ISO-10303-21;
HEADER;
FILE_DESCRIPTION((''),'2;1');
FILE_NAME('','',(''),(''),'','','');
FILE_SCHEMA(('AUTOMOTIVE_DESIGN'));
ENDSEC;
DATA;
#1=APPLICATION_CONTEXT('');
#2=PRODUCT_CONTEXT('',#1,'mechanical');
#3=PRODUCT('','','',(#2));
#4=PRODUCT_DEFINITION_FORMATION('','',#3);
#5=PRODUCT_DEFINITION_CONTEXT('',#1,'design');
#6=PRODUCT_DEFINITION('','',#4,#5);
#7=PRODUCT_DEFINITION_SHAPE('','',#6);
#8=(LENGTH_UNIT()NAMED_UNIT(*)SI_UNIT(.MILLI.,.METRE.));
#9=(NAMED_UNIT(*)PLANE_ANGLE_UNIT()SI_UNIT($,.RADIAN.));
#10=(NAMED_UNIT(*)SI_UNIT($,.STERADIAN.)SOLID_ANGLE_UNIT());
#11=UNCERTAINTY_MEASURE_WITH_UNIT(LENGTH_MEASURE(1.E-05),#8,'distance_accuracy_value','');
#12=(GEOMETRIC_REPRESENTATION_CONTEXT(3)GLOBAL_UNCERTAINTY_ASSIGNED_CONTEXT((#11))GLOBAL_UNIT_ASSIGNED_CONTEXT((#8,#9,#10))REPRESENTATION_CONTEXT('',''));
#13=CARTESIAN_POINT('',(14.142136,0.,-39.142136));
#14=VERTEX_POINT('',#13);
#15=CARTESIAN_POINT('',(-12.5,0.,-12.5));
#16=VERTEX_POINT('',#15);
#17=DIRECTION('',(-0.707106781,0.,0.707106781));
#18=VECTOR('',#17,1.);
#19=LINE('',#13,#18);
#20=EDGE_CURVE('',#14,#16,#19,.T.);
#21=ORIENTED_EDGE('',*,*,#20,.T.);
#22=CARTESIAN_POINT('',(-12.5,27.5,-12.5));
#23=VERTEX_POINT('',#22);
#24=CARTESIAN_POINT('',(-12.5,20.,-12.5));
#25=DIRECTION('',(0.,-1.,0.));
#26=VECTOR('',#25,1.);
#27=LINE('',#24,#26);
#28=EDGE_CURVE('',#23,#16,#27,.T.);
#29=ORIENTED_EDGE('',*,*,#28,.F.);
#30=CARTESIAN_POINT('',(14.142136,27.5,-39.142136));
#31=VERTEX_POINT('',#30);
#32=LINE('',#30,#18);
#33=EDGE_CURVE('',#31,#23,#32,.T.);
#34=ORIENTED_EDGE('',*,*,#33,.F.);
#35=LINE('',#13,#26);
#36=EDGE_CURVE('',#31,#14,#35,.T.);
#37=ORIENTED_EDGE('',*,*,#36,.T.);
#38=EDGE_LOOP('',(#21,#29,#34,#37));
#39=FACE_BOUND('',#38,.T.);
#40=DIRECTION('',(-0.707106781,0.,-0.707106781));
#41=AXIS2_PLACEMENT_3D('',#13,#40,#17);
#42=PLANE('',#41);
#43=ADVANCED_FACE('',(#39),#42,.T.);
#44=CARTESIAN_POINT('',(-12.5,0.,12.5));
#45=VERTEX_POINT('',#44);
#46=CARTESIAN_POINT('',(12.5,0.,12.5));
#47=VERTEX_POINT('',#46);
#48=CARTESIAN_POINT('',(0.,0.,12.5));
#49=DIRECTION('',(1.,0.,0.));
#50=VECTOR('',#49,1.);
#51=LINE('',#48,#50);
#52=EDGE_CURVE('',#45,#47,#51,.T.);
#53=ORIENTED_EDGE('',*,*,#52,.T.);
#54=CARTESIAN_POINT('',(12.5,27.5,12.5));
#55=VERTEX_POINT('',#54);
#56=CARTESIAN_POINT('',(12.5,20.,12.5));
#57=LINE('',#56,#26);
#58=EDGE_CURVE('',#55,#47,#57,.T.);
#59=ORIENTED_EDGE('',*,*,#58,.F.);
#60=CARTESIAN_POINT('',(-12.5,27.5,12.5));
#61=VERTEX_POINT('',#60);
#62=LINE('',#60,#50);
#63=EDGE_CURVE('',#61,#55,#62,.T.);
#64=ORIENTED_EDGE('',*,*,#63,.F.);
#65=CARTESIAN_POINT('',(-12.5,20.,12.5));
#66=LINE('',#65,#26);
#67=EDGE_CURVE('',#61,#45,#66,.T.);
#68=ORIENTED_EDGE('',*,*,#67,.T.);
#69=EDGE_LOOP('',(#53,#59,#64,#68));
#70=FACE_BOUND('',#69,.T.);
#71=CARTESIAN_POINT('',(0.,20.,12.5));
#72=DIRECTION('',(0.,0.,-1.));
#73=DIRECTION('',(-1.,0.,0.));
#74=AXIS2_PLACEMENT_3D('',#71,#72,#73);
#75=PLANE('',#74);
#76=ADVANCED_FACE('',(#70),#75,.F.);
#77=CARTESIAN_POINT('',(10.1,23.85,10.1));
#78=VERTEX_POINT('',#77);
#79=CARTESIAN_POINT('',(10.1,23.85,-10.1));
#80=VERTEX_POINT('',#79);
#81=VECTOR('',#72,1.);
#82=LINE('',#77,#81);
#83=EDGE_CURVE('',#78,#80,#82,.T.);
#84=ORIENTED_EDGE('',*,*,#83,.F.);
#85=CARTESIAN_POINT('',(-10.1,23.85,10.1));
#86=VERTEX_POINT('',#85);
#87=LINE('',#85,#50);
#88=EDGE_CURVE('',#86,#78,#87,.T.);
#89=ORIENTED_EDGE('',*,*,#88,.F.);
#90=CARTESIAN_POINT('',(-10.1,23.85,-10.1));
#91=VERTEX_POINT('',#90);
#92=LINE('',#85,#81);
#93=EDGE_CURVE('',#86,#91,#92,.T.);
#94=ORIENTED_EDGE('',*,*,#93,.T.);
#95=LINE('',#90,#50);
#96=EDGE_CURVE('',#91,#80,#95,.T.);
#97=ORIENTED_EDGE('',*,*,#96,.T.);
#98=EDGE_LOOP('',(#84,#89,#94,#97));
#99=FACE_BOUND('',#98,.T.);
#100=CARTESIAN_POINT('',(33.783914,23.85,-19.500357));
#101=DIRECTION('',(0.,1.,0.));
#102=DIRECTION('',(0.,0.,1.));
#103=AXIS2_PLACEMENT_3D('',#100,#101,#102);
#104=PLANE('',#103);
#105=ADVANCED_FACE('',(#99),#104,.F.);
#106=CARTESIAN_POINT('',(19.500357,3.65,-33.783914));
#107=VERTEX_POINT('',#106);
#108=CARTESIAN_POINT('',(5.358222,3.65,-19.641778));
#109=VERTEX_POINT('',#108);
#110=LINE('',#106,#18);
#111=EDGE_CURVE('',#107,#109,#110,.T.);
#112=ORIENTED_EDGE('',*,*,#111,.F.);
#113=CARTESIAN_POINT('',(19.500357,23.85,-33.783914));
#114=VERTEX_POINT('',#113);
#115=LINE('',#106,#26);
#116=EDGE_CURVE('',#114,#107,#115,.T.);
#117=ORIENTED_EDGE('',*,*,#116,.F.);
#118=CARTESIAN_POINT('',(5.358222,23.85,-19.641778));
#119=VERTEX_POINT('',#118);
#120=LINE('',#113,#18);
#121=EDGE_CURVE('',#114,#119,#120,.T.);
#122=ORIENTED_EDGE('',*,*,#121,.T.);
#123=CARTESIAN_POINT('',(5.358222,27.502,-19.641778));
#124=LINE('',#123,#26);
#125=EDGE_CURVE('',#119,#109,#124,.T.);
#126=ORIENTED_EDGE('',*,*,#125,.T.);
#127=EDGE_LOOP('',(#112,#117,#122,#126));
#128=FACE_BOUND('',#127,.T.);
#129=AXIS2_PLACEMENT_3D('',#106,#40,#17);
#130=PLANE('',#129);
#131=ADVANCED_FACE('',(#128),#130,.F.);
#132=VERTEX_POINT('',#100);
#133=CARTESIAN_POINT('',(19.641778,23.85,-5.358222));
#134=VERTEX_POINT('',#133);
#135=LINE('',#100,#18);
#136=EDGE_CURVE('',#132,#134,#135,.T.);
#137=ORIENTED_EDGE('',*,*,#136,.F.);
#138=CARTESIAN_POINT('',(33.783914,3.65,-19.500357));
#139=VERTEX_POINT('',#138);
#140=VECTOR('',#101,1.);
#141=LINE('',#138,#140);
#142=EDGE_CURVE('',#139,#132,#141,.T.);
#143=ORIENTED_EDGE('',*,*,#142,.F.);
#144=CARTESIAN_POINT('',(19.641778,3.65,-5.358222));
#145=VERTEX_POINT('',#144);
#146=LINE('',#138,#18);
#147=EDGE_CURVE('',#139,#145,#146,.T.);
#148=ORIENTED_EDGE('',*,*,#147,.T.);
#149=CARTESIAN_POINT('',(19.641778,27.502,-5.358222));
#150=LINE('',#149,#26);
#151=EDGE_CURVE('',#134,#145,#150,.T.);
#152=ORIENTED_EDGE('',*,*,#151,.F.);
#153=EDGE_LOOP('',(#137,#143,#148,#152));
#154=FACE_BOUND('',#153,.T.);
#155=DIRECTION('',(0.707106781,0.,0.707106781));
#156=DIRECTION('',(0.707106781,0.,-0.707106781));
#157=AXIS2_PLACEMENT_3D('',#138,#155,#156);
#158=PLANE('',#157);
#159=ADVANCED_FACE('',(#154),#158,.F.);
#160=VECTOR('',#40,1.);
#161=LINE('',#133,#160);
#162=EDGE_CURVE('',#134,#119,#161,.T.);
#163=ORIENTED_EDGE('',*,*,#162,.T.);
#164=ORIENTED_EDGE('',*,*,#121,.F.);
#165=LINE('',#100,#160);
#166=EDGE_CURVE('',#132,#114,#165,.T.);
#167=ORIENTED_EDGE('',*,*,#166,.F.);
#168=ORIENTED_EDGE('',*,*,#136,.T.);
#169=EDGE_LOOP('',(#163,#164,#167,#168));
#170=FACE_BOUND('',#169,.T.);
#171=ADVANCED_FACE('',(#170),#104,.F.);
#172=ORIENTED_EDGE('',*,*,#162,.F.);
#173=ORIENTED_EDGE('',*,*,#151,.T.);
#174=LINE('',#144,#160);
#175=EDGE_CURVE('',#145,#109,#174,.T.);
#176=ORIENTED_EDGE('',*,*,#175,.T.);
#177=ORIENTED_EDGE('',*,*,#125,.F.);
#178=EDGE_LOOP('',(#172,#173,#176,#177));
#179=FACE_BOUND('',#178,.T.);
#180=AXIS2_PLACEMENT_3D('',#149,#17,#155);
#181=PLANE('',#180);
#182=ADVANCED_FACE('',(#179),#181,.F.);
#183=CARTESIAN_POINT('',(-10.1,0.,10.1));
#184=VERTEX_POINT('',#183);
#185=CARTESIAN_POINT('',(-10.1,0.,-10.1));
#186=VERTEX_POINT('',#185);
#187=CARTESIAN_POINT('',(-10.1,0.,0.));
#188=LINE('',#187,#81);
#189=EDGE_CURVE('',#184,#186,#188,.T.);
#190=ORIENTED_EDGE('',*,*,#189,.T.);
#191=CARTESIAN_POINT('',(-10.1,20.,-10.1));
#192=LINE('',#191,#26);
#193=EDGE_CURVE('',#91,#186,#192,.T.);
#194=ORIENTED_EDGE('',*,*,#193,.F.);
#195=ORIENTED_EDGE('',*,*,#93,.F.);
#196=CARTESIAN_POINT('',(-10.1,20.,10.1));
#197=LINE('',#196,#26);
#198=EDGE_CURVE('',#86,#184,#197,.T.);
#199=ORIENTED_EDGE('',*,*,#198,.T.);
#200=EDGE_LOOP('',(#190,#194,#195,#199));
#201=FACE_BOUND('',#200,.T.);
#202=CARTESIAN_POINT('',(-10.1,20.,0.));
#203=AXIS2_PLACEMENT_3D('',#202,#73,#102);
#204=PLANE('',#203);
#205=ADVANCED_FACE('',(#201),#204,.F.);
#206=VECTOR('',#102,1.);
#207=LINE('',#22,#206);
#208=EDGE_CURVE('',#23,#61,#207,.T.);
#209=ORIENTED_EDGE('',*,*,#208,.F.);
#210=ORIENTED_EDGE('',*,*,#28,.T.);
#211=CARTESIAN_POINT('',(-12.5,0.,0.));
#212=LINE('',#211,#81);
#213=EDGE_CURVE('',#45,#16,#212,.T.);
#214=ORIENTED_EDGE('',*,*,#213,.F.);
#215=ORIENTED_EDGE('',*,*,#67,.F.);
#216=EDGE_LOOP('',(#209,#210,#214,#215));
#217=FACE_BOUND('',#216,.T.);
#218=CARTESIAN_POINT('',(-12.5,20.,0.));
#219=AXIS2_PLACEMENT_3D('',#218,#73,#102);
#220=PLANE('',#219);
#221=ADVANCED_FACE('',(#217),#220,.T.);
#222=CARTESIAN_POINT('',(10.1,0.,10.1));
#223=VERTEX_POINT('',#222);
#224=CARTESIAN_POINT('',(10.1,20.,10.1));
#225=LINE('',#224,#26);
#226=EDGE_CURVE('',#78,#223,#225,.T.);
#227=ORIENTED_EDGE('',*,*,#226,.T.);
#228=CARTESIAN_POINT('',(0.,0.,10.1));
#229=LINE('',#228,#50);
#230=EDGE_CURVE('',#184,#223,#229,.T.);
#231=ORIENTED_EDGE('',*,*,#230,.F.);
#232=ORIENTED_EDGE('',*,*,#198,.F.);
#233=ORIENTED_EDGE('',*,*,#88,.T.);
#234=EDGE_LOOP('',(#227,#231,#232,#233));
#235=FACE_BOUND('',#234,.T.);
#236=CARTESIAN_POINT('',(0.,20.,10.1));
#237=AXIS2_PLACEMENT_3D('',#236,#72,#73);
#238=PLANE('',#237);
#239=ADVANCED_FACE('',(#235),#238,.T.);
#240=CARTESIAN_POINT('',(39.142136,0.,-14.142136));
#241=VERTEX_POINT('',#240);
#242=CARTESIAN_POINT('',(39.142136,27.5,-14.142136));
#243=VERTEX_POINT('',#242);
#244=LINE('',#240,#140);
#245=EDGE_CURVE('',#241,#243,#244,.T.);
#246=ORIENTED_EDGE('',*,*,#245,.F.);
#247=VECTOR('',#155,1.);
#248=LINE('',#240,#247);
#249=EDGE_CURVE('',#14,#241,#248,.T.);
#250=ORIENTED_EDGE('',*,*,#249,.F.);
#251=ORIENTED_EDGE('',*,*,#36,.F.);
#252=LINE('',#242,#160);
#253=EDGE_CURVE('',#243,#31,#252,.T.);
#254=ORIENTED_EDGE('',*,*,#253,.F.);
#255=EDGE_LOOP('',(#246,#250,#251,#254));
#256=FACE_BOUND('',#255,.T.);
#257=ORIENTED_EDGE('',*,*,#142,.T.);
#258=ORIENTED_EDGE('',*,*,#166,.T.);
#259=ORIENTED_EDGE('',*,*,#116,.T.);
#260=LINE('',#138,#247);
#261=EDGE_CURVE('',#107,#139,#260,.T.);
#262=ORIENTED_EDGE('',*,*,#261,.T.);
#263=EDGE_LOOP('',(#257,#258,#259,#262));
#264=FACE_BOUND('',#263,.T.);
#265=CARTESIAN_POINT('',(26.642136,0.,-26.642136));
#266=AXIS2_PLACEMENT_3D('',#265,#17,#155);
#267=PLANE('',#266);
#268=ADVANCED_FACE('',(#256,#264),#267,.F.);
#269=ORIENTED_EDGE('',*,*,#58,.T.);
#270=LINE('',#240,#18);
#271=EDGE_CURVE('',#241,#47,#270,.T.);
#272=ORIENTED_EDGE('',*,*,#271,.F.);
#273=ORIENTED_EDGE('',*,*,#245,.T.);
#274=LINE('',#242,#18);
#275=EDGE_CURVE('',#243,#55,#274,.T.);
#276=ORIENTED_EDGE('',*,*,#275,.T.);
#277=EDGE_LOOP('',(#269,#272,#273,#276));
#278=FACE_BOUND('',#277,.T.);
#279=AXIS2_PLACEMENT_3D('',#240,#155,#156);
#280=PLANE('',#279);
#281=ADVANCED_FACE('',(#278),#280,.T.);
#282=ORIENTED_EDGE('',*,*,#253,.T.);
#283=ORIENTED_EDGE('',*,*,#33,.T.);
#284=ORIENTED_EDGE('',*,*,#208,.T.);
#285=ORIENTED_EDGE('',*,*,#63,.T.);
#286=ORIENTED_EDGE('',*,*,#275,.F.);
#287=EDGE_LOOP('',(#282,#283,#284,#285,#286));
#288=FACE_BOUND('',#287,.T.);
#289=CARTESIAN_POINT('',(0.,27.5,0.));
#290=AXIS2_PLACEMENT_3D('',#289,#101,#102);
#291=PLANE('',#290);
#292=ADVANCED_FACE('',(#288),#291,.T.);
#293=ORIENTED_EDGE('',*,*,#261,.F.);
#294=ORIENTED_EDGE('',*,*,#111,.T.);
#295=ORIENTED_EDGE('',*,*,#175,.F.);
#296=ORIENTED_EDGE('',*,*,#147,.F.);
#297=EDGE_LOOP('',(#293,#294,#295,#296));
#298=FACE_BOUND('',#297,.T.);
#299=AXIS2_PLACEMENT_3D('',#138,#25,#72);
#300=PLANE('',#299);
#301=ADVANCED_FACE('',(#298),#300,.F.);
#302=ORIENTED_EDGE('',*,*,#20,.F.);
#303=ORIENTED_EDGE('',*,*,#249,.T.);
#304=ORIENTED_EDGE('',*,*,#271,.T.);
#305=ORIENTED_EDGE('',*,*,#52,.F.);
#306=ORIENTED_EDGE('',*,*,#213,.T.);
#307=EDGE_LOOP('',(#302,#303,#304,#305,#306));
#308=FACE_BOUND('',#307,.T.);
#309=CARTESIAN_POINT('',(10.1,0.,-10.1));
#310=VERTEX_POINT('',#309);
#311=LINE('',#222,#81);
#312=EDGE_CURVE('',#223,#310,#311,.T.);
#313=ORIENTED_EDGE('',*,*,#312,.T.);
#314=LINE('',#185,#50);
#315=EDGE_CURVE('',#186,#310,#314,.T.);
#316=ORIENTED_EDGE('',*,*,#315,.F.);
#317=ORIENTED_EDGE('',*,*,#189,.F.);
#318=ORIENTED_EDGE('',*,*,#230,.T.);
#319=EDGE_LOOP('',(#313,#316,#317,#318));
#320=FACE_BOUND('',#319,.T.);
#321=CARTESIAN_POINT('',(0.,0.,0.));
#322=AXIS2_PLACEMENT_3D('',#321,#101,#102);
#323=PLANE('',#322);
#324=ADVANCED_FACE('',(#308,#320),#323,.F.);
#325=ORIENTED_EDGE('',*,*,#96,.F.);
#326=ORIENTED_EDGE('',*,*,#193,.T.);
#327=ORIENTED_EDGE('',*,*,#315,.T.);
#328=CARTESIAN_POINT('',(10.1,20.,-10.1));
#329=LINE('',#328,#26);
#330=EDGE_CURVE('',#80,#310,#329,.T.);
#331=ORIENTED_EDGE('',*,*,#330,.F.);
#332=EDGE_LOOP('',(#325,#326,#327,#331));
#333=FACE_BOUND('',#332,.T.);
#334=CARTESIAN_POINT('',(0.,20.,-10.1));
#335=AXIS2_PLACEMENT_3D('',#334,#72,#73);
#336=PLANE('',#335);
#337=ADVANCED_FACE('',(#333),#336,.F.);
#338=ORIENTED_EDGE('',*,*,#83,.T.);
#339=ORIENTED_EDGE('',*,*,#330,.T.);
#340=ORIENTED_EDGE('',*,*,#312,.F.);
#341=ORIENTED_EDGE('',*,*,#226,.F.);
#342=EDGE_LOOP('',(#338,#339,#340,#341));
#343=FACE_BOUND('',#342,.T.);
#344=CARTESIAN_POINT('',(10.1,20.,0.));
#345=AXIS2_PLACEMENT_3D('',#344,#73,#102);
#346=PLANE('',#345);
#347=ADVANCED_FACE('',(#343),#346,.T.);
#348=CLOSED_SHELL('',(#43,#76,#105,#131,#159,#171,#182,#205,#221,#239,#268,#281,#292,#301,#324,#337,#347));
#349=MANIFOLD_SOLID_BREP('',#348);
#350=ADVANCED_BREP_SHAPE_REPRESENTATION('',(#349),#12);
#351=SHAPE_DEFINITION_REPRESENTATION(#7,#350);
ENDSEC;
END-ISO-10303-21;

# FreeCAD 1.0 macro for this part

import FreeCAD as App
import Part
import Sketcher
Q = App.Units.Quantity


def add_polygon(sketch, points):
    """Adds a closed chain of lines whose ends are joined by coincident constraints."""
    first, n = sketch.GeometryCount, len(points)
    for a, b in zip(points, points[1:] + points[:1]):
        sketch.addGeometry(Part.LineSegment(App.Vector(*a, 0), App.Vector(*b, 0)), False)
    for i in range(n):
        sketch.addConstraint(Sketcher.Constraint("Coincident", first + i, 2, first + (i + 1) % n, 1))

doc = App.newDocument("Part")
body = doc.addObject("PartDesign::Body", "Body")

# Sketch on XZ plane
sketch1 = body.newObject("Sketcher::SketchObject", "Sketch")
sketch1.AttachmentSupport = (doc.getObject("XZ_Plane"), [""])
sketch1.MapMode = "FlatFace"
add_polygon(sketch1, [(-12, -12), (-12, 12), (12, 12), (12, -12)])  # lines 0-3
add_polygon(sketch1, [(10, 10), (-10, 10), (-10, -10), (10, -10)])  # lines 4-7
sketch1.addConstraint(Sketcher.Constraint("Vertical", 0))
sketch1.addConstraint(Sketcher.Constraint("Horizontal", 1))
sketch1.addConstraint(Sketcher.Constraint("Vertical", 2))
sketch1.addConstraint(Sketcher.Constraint("Horizontal", 3))
sketch1.addConstraint(Sketcher.Constraint("Horizontal", 4))
sketch1.addConstraint(Sketcher.Constraint("Vertical", 5))
sketch1.addConstraint(Sketcher.Constraint("Horizontal", 6))
sketch1.addConstraint(Sketcher.Constraint("Vertical", 7))
sketch1.addConstraint(Sketcher.Constraint("Symmetric", 0, 2, 2, 2, -1, 1))
sketch1.addConstraint(Sketcher.Constraint("Symmetric", 4, 2, 6, 2, -1, 1))
sketch1.addConstraint(Sketcher.Constraint("Equal", 3, 0))
sketch1.addConstraint(Sketcher.Constraint("Equal", 6, 5))
sketch1.addConstraint(Sketcher.Constraint("DistanceX", 1, 1, 1, 2, Q("25 mm")))
sketch1.addConstraint(Sketcher.Constraint("DistanceX", 4, 2, 4, 1, Q("20.2 mm")))
pad1 = body.newObject("PartDesign::Pad", "Pad")
pad1.Profile = sketch1
pad1.Length = 20
pad1.Reversed = True

# Sketch on XZ plane
sketch2 = body.newObject("Sketcher::SketchObject", "Sketch001")
sketch2.AttachmentSupport = (doc.getObject("XZ_Plane"), [""])
sketch2.MapMode = "FlatFace"
sketch2.AttachmentOffset = App.Placement(App.Vector(0, 0, -20), App.Rotation())
add_polygon(sketch2, [(-12, -12), (-12, 12), (12, 12), (12, -12)])  # lines 0-3
sketch2.addConstraint(Sketcher.Constraint("Vertical", 0))
sketch2.addConstraint(Sketcher.Constraint("Horizontal", 1))
sketch2.addConstraint(Sketcher.Constraint("Vertical", 2))
sketch2.addConstraint(Sketcher.Constraint("Horizontal", 3))
sketch2.addConstraint(Sketcher.Constraint("Symmetric", 0, 2, 2, 2, -1, 1))
sketch2.addConstraint(Sketcher.Constraint("Equal", 3, 0))
sketch2.addConstraint(Sketcher.Constraint("DistanceX", 1, 1, 1, 2, Q("25 mm")))
pad2 = body.newObject("PartDesign::Pad", "Pad001")
pad2.Profile = sketch2
pad2.Length = 7.5
pad2.Reversed = True

# Sketch on an angled plane
sketch3 = body.newObject("Sketcher::SketchObject", "Sketch002")
sketch3.Placement = App.Placement(App.Vector(12.5, 0, -12.5), App.Rotation(App.Vector(0.707106781, 0, 0.707106781), App.Vector(0, 0.999999999, 0), App.Vector(-0.707106781, 0, 0.707106781), "ZXY"))
add_polygon(sketch3, [(-18, 27), (-18, 0), (18, 0), (18, 27)])  # lines 0-3
add_polygon(sketch3, [(10, 4), (-10, 4), (-10, 24), (10, 24)])  # lines 4-7
sketch3.addConstraint(Sketcher.Constraint("Vertical", 0))
sketch3.addConstraint(Sketcher.Constraint("Horizontal", 1))
sketch3.addConstraint(Sketcher.Constraint("Vertical", 2))
sketch3.addConstraint(Sketcher.Constraint("Horizontal", 3))
sketch3.addConstraint(Sketcher.Constraint("Horizontal", 4))
sketch3.addConstraint(Sketcher.Constraint("Vertical", 5))
sketch3.addConstraint(Sketcher.Constraint("Horizontal", 6))
sketch3.addConstraint(Sketcher.Constraint("Vertical", 7))
sketch3.addConstraint(Sketcher.Constraint("Symmetric", 0, 2, 1, 2, -1, 1))
sketch3.addConstraint(Sketcher.Constraint("Equal", 6, 5))
sketch3.addConstraint(Sketcher.Constraint("DistanceX", 4, 2, 4, 1, Q("20.2 mm")))
sketch3.addConstraint(Sketcher.Constraint("DistanceY", 0, 2, 0, 1, Q("27.5 mm")))
sketch3.addConstraint(Sketcher.Constraint("DistanceX", 4, 2, -1, 1, Q("10.1 mm")))
sketch3.addConstraint(Sketcher.Constraint("DistanceY", -1, 1, 4, 2, Q("3.65 mm")))
sketch3.addConstraint(Sketcher.Constraint("DistanceX", 1, 1, 1, 2, Q("35.355339 mm")))
pad3 = body.newObject("PartDesign::Pad", "Pad002")
pad3.Profile = sketch3
pad3.Type = "TwoLengths"
pad3.Length = 17.67767
pad3.Length2 = 20

# Sketch on XZ plane
sketch4 = body.newObject("Sketcher::SketchObject", "Sketch003")
sketch4.AttachmentSupport = (doc.getObject("XZ_Plane"), [""])
sketch4.MapMode = "FlatFace"
add_polygon(sketch4, [(-10, -10), (-10, 10), (10, 10), (10, -10)])  # lines 0-3
sketch4.addConstraint(Sketcher.Constraint("Vertical", 0))
sketch4.addConstraint(Sketcher.Constraint("Horizontal", 1))
sketch4.addConstraint(Sketcher.Constraint("Vertical", 2))
sketch4.addConstraint(Sketcher.Constraint("Horizontal", 3))
sketch4.addConstraint(Sketcher.Constraint("Symmetric", 0, 2, 2, 2, -1, 1))
sketch4.addConstraint(Sketcher.Constraint("Equal", 3, 0))
sketch4.addConstraint(Sketcher.Constraint("DistanceX", 1, 1, 1, 2, Q("20.2 mm")))
pocket1 = body.newObject("PartDesign::Pocket", "Pocket")
pocket1.Profile = sketch4
pocket1.Length = 23.85

# Sketch on an angled plane
sketch5 = body.newObject("Sketcher::SketchObject", "Sketch004")
sketch5.Placement = App.Placement(App.Vector(12.5, 0, -12.5), App.Rotation(App.Vector(0.707106781, 0, 0.707106781), App.Vector(0, 0.999999999, 0), App.Vector(-0.707106781, 0, 0.707106781), "ZXY"))
add_polygon(sketch5, [(-10, 24), (-10, 4), (10, 4), (10, 24)])  # lines 0-3
sketch5.addConstraint(Sketcher.Constraint("Vertical", 0))
sketch5.addConstraint(Sketcher.Constraint("Horizontal", 1))
sketch5.addConstraint(Sketcher.Constraint("Vertical", 2))
sketch5.addConstraint(Sketcher.Constraint("Horizontal", 3))
sketch5.addConstraint(Sketcher.Constraint("Equal", 3, 0))
sketch5.addConstraint(Sketcher.Constraint("DistanceX", 1, 1, 1, 2, Q("20.2 mm")))
sketch5.addConstraint(Sketcher.Constraint("DistanceX", 0, 2, -1, 1, Q("10.1 mm")))
sketch5.addConstraint(Sketcher.Constraint("DistanceY", -1, 1, 0, 2, Q("3.65 mm")))
pocket2 = body.newObject("PartDesign::Pocket", "Pocket001")
pocket2.Profile = sketch5
pocket2.Length = 20
pocket2.Reversed = True

# Sketch on XZ plane
sketch6 = body.newObject("Sketcher::SketchObject", "Sketch005")
sketch6.AttachmentSupport = (doc.getObject("XZ_Plane"), [""])
sketch6.MapMode = "FlatFace"
sketch6.AttachmentOffset = App.Placement(App.Vector(0, 0, -3.65), App.Rotation())
add_polygon(sketch6, [(20, -5), (5, -20), (-4, -10), (10, -10), (10, 4)])  # lines 0-4
sketch6.addConstraint(Sketcher.Constraint("Horizontal", 2))
sketch6.addConstraint(Sketcher.Constraint("Vertical", 3))
sketch6.addConstraint(Sketcher.Constraint("Perpendicular", 0, 1))
sketch6.addConstraint(Sketcher.Constraint("Parallel", 1, 4))
sketch6.addConstraint(Sketcher.Constraint("Equal", 2, 3))
sketch6.addConstraint(Sketcher.Constraint("Equal", 1, 4))
sketch6.addConstraint(Sketcher.Constraint("Distance", 0, Q("20.2 mm")))
sketch6.addConstraint(Sketcher.Constraint("DistanceY", 1, 2, -1, 1, Q("10.1 mm")))
sketch6.addConstraint(Sketcher.Constraint("DistanceX", -1, 1, 2, 2, Q("10.1 mm")))
sketch6.addConstraint(Sketcher.Constraint("DistanceX", -1, 1, 0, 2, Q("5.358222 mm")))
pad4 = body.newObject("PartDesign::Pad", "Pad003")
pad4.Profile = sketch6
pad4.Type = "UpToFirst"
pad4.Reversed = True

doc.recompute()
